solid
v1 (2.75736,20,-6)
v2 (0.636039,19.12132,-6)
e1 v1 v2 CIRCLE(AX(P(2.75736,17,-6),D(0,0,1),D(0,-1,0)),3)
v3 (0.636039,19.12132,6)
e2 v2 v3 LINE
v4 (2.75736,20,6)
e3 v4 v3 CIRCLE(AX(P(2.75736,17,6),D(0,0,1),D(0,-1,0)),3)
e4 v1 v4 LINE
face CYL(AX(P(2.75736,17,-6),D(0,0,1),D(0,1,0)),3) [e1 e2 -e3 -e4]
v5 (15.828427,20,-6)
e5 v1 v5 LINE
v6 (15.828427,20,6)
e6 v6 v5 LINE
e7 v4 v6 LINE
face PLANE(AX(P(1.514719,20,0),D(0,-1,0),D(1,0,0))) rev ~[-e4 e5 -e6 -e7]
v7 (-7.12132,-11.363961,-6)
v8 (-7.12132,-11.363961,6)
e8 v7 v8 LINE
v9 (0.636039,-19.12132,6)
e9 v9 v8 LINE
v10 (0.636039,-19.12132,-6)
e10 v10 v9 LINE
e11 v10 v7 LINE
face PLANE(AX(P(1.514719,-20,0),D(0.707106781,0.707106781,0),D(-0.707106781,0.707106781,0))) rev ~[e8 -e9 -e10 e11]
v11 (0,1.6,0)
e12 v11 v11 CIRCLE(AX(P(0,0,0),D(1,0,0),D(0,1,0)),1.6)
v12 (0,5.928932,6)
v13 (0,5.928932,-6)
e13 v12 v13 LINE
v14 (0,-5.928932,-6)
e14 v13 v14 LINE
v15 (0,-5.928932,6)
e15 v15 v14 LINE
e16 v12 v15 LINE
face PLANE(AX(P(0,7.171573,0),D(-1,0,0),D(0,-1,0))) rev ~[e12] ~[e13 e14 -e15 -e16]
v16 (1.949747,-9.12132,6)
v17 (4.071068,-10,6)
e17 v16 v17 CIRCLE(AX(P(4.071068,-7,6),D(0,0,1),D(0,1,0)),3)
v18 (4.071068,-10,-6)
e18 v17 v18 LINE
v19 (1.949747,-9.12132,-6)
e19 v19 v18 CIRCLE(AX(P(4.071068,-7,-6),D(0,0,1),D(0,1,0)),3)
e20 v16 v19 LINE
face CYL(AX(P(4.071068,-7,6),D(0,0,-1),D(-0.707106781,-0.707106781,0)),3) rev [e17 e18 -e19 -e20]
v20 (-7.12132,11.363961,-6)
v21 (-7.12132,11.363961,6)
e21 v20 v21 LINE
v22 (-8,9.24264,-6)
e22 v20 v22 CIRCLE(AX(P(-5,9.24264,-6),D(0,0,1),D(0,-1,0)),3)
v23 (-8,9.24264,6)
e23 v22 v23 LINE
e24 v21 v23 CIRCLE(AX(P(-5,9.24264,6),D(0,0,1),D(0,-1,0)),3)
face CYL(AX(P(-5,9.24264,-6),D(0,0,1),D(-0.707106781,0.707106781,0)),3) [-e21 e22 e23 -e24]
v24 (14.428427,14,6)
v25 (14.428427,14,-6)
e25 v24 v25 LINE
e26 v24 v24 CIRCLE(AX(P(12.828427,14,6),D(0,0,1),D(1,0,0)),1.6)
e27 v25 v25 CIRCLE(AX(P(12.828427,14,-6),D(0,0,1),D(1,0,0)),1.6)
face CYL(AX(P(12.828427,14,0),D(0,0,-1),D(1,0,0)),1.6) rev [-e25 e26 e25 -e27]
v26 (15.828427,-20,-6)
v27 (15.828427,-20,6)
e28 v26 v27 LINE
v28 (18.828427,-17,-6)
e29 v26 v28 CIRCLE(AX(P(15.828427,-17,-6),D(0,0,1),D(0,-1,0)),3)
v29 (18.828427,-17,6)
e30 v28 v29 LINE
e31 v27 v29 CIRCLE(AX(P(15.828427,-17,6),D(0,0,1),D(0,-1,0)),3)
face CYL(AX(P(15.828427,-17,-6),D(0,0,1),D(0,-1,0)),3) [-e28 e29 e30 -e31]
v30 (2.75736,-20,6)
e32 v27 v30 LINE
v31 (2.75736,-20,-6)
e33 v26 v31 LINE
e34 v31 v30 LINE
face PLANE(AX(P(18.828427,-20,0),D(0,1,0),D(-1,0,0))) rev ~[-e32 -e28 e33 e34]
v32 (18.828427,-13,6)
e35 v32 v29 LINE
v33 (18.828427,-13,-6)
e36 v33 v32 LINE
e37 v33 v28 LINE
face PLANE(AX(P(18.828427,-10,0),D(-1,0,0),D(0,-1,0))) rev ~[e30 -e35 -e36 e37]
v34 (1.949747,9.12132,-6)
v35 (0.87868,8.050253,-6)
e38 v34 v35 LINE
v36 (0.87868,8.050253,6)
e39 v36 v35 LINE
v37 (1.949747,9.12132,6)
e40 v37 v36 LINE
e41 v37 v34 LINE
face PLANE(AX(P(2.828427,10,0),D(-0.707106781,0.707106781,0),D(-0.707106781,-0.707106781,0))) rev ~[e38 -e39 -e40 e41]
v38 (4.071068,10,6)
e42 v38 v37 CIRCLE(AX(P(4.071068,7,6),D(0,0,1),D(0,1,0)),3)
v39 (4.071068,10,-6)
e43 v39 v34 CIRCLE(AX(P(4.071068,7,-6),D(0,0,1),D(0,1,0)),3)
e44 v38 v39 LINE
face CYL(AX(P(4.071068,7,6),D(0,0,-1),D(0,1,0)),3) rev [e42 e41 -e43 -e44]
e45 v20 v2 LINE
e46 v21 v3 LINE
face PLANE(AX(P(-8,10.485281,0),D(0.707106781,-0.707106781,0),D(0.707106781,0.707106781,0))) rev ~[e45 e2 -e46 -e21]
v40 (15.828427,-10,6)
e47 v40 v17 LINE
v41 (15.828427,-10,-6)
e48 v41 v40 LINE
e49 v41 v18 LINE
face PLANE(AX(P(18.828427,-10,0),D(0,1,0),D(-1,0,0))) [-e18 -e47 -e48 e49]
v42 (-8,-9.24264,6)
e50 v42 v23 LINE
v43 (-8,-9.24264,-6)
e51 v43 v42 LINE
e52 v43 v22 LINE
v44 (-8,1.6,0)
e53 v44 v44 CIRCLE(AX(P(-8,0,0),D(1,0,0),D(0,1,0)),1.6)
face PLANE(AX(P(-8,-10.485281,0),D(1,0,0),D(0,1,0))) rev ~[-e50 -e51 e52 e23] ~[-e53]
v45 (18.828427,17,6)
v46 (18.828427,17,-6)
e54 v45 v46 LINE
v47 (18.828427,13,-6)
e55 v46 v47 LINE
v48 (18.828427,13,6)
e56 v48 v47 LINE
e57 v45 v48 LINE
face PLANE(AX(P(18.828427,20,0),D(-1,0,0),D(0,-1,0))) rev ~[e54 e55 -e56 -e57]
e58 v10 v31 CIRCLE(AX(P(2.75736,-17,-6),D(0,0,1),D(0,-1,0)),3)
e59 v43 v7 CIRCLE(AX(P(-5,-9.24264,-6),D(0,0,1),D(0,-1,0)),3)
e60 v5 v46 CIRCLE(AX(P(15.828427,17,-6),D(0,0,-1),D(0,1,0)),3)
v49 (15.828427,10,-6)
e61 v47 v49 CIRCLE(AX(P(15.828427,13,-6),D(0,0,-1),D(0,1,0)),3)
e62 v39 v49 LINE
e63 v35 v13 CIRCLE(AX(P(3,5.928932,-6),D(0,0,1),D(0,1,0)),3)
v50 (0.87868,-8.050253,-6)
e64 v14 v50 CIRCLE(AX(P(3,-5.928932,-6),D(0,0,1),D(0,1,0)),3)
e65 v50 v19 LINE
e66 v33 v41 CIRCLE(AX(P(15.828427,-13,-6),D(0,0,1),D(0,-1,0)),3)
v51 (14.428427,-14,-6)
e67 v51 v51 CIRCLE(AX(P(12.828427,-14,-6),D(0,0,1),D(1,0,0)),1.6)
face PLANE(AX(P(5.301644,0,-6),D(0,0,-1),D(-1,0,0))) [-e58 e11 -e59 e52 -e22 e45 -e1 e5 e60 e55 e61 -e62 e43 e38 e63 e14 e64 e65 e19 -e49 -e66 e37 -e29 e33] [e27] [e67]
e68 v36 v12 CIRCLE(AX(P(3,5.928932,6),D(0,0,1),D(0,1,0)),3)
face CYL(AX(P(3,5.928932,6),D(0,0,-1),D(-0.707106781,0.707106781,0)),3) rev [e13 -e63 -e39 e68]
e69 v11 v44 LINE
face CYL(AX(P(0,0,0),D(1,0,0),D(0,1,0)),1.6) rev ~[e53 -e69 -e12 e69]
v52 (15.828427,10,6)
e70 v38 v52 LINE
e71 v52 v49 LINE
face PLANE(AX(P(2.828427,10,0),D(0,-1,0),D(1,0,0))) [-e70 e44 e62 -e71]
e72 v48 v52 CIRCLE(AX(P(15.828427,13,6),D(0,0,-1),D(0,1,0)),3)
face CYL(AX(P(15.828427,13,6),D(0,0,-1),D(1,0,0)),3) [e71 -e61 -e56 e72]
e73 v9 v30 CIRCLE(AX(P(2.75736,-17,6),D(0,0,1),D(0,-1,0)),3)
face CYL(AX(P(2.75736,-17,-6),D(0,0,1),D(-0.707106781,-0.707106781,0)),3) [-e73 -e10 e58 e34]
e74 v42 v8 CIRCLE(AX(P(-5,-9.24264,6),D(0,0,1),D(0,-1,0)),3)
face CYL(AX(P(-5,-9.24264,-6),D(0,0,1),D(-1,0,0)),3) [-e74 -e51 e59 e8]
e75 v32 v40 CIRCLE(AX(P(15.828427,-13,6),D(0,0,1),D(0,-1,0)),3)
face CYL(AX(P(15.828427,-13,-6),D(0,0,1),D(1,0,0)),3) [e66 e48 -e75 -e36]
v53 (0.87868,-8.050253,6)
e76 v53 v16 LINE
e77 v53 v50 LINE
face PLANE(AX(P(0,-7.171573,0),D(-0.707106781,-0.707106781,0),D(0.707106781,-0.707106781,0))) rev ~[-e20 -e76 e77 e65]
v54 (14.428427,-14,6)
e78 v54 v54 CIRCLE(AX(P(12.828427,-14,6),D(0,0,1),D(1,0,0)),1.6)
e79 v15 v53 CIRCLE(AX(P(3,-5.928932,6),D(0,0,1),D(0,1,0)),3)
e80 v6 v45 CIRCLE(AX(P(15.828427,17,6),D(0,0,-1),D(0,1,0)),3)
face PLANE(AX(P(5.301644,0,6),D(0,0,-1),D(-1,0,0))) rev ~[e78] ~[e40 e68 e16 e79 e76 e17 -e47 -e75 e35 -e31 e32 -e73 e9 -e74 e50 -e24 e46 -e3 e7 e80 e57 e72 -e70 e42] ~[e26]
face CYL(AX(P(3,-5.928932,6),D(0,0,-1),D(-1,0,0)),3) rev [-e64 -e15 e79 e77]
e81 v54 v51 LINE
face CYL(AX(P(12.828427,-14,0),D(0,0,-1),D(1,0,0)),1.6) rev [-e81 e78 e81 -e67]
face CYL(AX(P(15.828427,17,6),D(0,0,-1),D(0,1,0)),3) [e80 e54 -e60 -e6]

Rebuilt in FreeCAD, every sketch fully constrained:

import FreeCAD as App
import Part
import Sketcher

V = App.Vector


def edges_at(feature, points):
    """Names of the edges that pass closest to the given points."""
    edges = feature.Shape.Edges
    near = lambda p: min(range(len(edges)), key=lambda i: edges[i].distToShape(Part.Vertex(*p))[0])
    return sorted({f"Edge{near(p) + 1}" for p in points})


def add_polygon(sketch, points):
    """Adds a closed chain of lines whose ends are joined by coincident constraints."""
    first, n = sketch.GeometryCount, len(points)
    for a, b in zip(points, points[1:] + points[:1]):
        sketch.addGeometry(Part.LineSegment(App.Vector(*a, 0), App.Vector(*b, 0)), False)
    for i in range(n):
        sketch.addConstraint(Sketcher.Constraint("Coincident", first + i, 2, first + (i + 1) % n, 1))

doc = App.newDocument("Part")
body = doc.addObject("PartDesign::Body", "Body")

# Sketch on XY plane
sketch1 = body.newObject("Sketcher::SketchObject", "Sketch")
sketch1.AttachmentSupport = (doc.getObject("XY_Plane"), [""])
sketch1.MapMode = "FlatFace"
add_polygon(sketch1, [(18.8, 20), (1.5, 20), (-8, 10.5), (-8, -10.5), (1.5, -20), (18.8, -20), (18.8, -10), (2.8, -10), (0, -7.2), (0, 7.2), (2.8, 10), (18.8, 10)])  # lines 0-11
sketch1.addGeometry(Part.Circle(V(12.8, -14, 0), V(0, 0, 1), 1.6), False)  # 12
sketch1.addGeometry(Part.Circle(V(12.8, 14, 0), V(0, 0, 1), 1.6), False)  # 13
sketch1.addConstraint(Sketcher.Constraint("Horizontal", 0))
sketch1.addConstraint(Sketcher.Constraint("Vertical", 2))
sketch1.addConstraint(Sketcher.Constraint("Horizontal", 4))
sketch1.addConstraint(Sketcher.Constraint("Vertical", 5))
sketch1.addConstraint(Sketcher.Constraint("Horizontal", 6))
sketch1.addConstraint(Sketcher.Constraint("Vertical", 8))
sketch1.addConstraint(Sketcher.Constraint("Horizontal", 10))
sketch1.addConstraint(Sketcher.Constraint("Vertical", 11))
sketch1.addConstraint(Sketcher.Constraint("Equal", 12, 13))
sketch1.addConstraint(Sketcher.Constraint("Symmetric", 7, 2, 8, 2, -1, 1))
sketch1.addConstraint(Sketcher.Constraint("Symmetric", 12, 3, 13, 3, -1))
sketch1.addConstraint(Sketcher.Constraint("Symmetric", 0, 2, 3, 2, -1))
sketch1.addConstraint(Sketcher.Constraint("Symmetric", 6, 2, 9, 2, -1))
sketch1.addConstraint(Sketcher.Constraint("Perpendicular", 1, 3))
sketch1.addConstraint(Sketcher.Constraint("Parallel", 3, 7))
sketch1.addConstraint(Sketcher.Constraint("Perpendicular", 7, 9))
sketch1.addConstraint(Sketcher.Constraint("Vertical", 5, 2, 10, 2))
sketch1.addConstraint(Sketcher.Constraint("Diameter", 12, 3.2))
sketch1.addConstraint(Sketcher.Constraint("DistanceX", 6, 2, 6, 1, 16.0))
sketch1.addConstraint(Sketcher.Constraint("DistanceY", 5, 1, 5, 2, 10.0))
sketch1.addConstraint(Sketcher.Constraint("Distance", 7, 4.0))
sketch1.addConstraint(Sketcher.Constraint("DistanceY", 12, 3, -1, 1, 14.0))
sketch1.addConstraint(Sketcher.Constraint("DistanceY", -1, 1, 0, 2, 20.0))
sketch1.addConstraint(Sketcher.Constraint("DistanceX", 1, 2, -1, 1, 8.0))
sketch1.addConstraint(Sketcher.Constraint("DistanceX", 12, 3, 4, 2, 6.0))
sketch1.addConstraint(Sketcher.Constraint("DistanceX", 0, 2, 0, 1, 17.313708))
pad1 = body.newObject("PartDesign::Pad", "Pad")
pad1.Profile = sketch1
pad1.Length = 12
pad1.Midplane = True

# Sketch on YZ plane
sketch2 = body.newObject("Sketcher::SketchObject", "Sketch001")
sketch2.AttachmentSupport = (doc.getObject("YZ_Plane"), [""])
sketch2.MapMode = "FlatFace"
sketch2.addGeometry(Part.Circle(V(0, 0, 0), V(0, 0, 1), 1.6), False)
sketch2.addConstraint(Sketcher.Constraint("Coincident", 0, 3, -1, 1))
sketch2.addConstraint(Sketcher.Constraint("Diameter", 0, 3.2))
pocket1 = body.newObject("PartDesign::Pocket", "Pocket")
pocket1.Profile = sketch2
pocket1.Type = "ThroughAll"
doc.recompute()

fillet = body.newObject("PartDesign::Fillet", "Fillet")
fillet.Base = (pocket1, edges_at(pocket1, [
    (18.828, -20, 0),
    (18.828, -10, 0),
    (18.828, 10, 0),
    (18.828, 20, 0),
    (1.515, -20, 0),
    (-8, -10.485, 0),
    (-8, 10.485, 0),
    (1.515, 20, 0),
    (2.828, 10, 0),
    (0, 7.172, 0),
    (0, -7.172, 0),
    (2.828, -10, 0),
]))
fillet.Radius = 3

doc.recompute()
